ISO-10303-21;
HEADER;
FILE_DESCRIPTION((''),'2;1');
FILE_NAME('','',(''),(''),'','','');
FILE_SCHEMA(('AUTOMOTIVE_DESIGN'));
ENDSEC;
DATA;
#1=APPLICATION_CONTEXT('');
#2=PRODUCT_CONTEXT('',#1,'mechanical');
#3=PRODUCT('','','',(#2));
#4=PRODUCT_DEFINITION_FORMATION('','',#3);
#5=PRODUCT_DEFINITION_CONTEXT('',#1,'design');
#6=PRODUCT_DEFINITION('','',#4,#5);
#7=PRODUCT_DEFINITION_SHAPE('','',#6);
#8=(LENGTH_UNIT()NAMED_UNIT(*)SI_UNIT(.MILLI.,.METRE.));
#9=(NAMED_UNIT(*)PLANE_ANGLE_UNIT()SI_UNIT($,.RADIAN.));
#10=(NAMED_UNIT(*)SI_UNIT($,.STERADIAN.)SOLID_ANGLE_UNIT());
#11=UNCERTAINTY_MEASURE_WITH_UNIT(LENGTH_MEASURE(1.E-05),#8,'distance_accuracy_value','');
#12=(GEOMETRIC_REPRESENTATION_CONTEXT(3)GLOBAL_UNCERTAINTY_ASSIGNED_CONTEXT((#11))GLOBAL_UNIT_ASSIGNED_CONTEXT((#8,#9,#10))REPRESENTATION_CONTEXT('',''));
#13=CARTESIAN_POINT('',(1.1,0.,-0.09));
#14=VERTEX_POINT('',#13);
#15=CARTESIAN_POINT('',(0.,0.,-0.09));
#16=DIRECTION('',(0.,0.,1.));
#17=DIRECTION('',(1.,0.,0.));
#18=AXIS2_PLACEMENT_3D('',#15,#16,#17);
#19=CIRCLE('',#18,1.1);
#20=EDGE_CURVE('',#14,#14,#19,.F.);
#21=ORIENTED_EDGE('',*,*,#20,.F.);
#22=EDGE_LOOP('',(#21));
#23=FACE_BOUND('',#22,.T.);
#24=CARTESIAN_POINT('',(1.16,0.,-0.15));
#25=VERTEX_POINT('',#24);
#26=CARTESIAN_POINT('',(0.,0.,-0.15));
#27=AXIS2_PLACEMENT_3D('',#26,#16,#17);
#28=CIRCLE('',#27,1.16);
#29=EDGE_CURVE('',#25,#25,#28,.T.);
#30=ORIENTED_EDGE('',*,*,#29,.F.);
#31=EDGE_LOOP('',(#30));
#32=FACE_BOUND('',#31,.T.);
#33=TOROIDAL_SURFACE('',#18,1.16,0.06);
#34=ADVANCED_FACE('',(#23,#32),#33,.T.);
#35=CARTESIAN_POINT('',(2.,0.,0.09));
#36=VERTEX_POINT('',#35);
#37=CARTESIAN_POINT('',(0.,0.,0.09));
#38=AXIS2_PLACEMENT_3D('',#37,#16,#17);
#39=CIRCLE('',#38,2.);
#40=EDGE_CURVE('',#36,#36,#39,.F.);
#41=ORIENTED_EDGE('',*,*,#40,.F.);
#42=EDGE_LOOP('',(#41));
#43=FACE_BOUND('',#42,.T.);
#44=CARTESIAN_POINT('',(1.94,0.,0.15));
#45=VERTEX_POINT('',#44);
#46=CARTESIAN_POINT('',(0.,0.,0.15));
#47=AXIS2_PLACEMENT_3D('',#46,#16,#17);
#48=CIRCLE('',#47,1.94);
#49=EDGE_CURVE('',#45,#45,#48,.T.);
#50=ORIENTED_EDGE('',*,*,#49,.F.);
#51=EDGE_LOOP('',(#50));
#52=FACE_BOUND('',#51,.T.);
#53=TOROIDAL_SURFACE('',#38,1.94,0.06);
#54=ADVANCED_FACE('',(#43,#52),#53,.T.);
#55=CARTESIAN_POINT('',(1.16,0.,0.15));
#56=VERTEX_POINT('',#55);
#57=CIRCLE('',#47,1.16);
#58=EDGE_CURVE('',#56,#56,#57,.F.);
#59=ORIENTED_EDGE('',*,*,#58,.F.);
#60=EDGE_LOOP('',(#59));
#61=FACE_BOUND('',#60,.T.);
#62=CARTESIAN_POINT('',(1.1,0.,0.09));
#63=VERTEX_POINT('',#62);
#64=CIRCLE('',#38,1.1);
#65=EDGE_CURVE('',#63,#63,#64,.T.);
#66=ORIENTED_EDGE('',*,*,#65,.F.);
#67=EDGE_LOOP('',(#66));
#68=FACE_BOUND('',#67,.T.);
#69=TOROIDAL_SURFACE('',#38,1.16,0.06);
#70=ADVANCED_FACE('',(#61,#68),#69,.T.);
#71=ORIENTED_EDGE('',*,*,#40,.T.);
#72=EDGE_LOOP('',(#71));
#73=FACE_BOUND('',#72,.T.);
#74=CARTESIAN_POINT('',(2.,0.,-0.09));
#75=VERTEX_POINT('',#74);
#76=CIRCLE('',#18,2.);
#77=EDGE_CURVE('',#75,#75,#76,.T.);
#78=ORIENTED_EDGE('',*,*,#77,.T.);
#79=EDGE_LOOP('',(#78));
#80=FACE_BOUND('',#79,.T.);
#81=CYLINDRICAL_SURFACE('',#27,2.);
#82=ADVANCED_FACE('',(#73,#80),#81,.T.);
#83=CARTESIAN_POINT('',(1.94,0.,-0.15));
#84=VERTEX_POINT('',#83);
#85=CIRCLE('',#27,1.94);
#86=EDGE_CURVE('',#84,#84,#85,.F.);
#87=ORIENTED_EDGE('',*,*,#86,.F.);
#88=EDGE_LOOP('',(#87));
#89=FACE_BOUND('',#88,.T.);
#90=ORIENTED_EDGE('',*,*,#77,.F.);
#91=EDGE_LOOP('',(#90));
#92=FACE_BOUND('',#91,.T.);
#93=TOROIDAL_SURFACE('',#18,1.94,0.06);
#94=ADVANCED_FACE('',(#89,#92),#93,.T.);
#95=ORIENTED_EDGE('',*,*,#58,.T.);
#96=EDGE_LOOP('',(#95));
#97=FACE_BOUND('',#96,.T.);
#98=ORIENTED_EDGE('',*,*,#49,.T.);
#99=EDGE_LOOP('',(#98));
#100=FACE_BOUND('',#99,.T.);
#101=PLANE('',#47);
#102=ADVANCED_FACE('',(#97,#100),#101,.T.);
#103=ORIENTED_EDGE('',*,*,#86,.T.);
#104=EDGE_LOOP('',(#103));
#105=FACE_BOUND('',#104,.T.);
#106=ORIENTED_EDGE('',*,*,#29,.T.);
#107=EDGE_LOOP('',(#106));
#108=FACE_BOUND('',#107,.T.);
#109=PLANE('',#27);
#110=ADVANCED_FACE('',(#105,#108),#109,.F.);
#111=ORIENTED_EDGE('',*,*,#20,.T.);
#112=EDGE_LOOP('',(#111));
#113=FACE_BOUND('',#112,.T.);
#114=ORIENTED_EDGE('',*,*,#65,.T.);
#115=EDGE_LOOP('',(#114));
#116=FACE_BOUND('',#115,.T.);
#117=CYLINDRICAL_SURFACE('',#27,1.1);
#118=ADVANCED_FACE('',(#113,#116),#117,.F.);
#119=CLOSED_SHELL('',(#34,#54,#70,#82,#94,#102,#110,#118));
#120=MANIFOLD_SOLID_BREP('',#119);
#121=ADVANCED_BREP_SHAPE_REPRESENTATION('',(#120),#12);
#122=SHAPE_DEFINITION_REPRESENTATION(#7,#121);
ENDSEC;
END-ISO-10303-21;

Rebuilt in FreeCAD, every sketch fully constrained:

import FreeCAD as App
import Part
import Sketcher
Q = App.Units.Quantity


def edges_at(feature, points):
    """Names of the edges that pass closest to the given points."""
    edges = feature.Shape.Edges
    near = lambda p: min(range(len(edges)), key=lambda i: edges[i].distToShape(Part.Vertex(*p))[0])
    return sorted({f"Edge{near(p) + 1}" for p in points})

doc = App.newDocument("Part")
body = doc.addObject("PartDesign::Body", "Body")

sketch1 = body.newObject("Sketcher::SketchObject", "Sketch")
sketch1.AttachmentSupport = (doc.getObject("XY_Plane"), [""])
sketch1.MapMode = "FlatFace"
sketch1.AttachmentOffset = App.Placement(App.Vector(0, 0, 0.15), App.Rotation())
sketch1.addGeometry(Part.Circle(App.Vector(0, 0, 0), App.Vector(0, 0, 1), 2), False)
sketch1.addGeometry(Part.Circle(App.Vector(0, 0, 0), App.Vector(0, 0, 1), 1.1), False)
sketch1.addConstraint(Sketcher.Constraint("Coincident", 0, 3, -1, 1))
sketch1.addConstraint(Sketcher.Constraint("Coincident", 1, 3, -1, 1))
sketch1.addConstraint(Sketcher.Constraint("Diameter", 0, Q("4 mm")))
sketch1.addConstraint(Sketcher.Constraint("Diameter", 1, Q("2.2 mm")))
pad1 = body.newObject("PartDesign::Pad", "Pad")
pad1.Profile = sketch1
pad1.Length = 0.3
pad1.Reversed = True
doc.recompute()

fillet = body.newObject("PartDesign::Fillet", "Fillet")
fillet.Base = (pad1, edges_at(pad1, [
    (-2, 0, 0.15),
    (-2, 0, -0.15),
    (-1.1, 0, -0.15),
    (-1.1, 0, 0.15),
]))
fillet.Radius = 0.06

doc.recompute()
